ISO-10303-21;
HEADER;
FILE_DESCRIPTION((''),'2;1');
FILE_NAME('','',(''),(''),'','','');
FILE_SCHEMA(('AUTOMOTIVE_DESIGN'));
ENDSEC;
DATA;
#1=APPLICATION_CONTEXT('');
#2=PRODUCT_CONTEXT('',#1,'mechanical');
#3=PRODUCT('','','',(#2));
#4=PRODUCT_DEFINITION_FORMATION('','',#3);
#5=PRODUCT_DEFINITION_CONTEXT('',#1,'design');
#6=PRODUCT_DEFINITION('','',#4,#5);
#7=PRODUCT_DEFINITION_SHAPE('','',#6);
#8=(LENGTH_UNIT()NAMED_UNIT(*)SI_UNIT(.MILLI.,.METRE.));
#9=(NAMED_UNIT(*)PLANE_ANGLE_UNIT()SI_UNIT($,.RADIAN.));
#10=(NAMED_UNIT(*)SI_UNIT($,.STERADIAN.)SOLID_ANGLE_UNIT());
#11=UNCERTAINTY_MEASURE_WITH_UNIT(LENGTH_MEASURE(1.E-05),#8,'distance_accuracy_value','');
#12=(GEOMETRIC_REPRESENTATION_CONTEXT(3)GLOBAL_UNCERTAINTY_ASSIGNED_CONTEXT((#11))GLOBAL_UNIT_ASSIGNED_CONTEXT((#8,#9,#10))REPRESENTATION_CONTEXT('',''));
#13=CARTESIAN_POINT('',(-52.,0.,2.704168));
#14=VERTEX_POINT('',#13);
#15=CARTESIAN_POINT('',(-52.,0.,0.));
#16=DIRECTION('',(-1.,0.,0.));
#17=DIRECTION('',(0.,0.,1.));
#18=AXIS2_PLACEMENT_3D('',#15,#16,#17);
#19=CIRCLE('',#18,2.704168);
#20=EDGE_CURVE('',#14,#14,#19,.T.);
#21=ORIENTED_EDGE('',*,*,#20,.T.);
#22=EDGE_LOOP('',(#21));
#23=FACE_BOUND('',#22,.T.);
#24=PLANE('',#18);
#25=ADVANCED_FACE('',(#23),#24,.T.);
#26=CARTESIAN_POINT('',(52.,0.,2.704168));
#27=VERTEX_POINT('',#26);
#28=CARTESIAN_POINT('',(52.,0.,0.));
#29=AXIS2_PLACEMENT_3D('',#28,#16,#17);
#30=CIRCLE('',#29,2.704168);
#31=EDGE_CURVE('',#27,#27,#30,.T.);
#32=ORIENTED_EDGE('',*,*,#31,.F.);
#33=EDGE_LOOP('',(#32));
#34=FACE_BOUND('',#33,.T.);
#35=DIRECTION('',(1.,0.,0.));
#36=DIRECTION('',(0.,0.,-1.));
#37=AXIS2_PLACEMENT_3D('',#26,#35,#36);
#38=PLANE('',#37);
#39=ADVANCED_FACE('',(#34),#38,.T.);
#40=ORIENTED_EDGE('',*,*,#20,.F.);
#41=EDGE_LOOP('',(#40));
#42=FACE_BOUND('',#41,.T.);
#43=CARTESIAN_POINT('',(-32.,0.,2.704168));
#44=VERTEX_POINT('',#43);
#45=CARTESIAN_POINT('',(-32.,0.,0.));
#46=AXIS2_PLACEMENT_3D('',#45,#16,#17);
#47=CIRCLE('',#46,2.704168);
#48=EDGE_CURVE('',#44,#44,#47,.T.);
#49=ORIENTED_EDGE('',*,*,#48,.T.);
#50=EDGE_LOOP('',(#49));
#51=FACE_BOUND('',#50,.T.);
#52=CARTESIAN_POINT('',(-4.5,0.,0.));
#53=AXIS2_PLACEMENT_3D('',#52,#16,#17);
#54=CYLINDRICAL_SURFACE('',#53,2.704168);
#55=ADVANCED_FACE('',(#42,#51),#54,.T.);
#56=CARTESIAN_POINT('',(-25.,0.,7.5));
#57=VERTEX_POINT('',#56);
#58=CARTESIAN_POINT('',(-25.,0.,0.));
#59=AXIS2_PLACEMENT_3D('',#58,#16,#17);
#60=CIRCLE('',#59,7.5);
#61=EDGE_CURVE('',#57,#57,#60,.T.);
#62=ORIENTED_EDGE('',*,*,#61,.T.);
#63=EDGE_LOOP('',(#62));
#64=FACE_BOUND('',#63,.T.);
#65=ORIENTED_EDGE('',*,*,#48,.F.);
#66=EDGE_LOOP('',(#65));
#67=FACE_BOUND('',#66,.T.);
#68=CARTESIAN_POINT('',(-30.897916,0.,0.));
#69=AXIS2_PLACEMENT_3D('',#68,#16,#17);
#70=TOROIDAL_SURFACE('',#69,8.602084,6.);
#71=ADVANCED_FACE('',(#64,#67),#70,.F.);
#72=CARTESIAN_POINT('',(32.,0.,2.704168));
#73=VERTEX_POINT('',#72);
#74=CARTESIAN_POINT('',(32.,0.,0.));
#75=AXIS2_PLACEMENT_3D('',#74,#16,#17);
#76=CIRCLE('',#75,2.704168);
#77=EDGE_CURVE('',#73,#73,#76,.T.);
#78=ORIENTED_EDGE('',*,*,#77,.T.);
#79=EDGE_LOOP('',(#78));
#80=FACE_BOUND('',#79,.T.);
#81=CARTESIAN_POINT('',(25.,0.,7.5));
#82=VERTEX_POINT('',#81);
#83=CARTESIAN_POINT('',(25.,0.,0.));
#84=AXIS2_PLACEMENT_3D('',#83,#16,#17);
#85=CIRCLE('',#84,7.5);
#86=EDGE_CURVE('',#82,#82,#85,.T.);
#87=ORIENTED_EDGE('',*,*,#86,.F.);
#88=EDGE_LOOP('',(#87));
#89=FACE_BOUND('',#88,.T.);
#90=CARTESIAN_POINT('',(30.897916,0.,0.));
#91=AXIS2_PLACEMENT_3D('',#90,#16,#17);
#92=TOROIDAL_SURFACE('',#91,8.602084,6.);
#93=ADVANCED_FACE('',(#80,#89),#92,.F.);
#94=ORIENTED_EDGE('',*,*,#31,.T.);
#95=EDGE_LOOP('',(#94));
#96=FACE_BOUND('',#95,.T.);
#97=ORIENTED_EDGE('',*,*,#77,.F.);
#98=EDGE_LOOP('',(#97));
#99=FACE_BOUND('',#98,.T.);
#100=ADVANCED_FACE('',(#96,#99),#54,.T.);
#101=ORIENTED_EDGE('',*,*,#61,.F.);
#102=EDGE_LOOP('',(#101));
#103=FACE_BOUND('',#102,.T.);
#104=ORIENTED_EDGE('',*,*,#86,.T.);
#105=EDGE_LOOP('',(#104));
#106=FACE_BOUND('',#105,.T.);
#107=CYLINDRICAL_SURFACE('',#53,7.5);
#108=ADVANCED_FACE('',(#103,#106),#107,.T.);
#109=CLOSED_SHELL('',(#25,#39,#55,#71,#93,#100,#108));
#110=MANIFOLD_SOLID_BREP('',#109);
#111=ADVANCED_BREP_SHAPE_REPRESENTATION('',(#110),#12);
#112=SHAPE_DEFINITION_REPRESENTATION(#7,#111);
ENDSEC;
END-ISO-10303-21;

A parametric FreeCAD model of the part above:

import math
import FreeCAD as App
import Part
import Sketcher

V = App.Vector

doc = App.newDocument("Part")
body = doc.addObject("PartDesign::Body", "Body")

# Sketch on XZ plane
sketch1 = body.newObject("Sketcher::SketchObject", "Sketch")
sketch1.AttachmentSupport = (doc.getObject("XZ_Plane"), [""])
sketch1.MapMode = "FlatFace"
sketch1.addGeometry([
    Part.LineSegment(V(-25, 7.5, 0), V(25, 7.5, 0)),  # 0
    Part.ArcOfCircle(Part.Circle(V(30.9, 8.6, 0), V(0, 0, 1), 6), math.radians(-169), math.radians(-79)),  # 1
    Part.LineSegment(V(32, 2.7, 0), V(52, 2.7, 0)),  # 2
    Part.LineSegment(V(52, 2.7, 0), V(52, 0, 0)),  # 3
    Part.LineSegment(V(52, 0, 0), V(-52, 0, 0)),  # 4
    Part.LineSegment(V(-52, 0, 0), V(-52, 2.7, 0)),  # 5
    Part.LineSegment(V(-52, 2.7, 0), V(-32, 2.7, 0)),  # 6
    Part.ArcOfCircle(Part.Circle(V(-30.9, 8.6, 0), V(0, 0, 1), 6), math.radians(-101), math.radians(-11)),  # 7
], False)
sketch1.addConstraint([
    Sketcher.Constraint("Coincident", 0, 2, 1, 1),
    Sketcher.Constraint("Coincident", 1, 2, 2, 1),
    Sketcher.Constraint("Coincident", 2, 2, 3, 1),
    Sketcher.Constraint("Coincident", 3, 2, 4, 1),
    Sketcher.Constraint("Coincident", 4, 2, 5, 1),
    Sketcher.Constraint("Coincident", 5, 2, 6, 1),
    Sketcher.Constraint("Coincident", 6, 2, 7, 1),
    Sketcher.Constraint("Coincident", 7, 2, 0, 1),
    Sketcher.Constraint("Horizontal", 0),
    Sketcher.Constraint("Horizontal", 2),
    Sketcher.Constraint("Vertical", 3),
    Sketcher.Constraint("Horizontal", 4),
    Sketcher.Constraint("Vertical", 5),
    Sketcher.Constraint("Horizontal", 6),
    Sketcher.Constraint("Equal", 1, 7),
    Sketcher.Constraint("Symmetric", 3, 2, 4, 2, -1, 1),
    Sketcher.Constraint("Symmetric", 1, 3, 7, 3, -2),
    Sketcher.Constraint("Horizontal", 2, 2, 5, 2),
    Sketcher.Constraint("Radius", 1, 6.0),
    Sketcher.Constraint("DistanceX", 0, 1, 0, 2, 50.0),
    Sketcher.Constraint("DistanceX", 2, 1, 2, 2, 20.0),
    Sketcher.Constraint("DistanceX", 4, 2, 4, 1, 104.0),
    Sketcher.Constraint("DistanceY", -1, 1, 0, 2, 7.5),
    Sketcher.Constraint("DistanceY", 3, 2, 3, 1, 2.704168),
])
revolution = body.newObject("PartDesign::Revolution", "Revolution")
revolution.Profile = sketch1
revolution.ReferenceAxis = (sketch1, ["H_Axis"])
revolution.Angle = 360

doc.recompute()
